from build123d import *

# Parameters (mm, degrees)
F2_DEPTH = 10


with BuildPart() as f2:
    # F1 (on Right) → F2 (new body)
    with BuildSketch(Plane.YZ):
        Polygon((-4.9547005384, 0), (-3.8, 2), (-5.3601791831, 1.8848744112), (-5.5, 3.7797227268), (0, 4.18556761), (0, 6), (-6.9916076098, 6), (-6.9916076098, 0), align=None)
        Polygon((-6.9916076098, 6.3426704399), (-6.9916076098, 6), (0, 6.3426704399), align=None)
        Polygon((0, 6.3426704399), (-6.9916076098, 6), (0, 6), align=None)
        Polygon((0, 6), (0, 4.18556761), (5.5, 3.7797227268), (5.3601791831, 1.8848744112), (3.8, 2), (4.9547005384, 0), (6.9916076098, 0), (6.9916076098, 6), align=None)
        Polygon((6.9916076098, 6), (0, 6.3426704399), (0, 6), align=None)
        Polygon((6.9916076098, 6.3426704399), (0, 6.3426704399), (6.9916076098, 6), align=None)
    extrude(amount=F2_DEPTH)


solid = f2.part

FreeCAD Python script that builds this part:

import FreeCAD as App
import Part
import Sketcher
Q = App.Units.Quantity


def add_polygon(sketch, points):
    """Adds a closed chain of lines whose ends are joined by coincident constraints."""
    first, n = sketch.GeometryCount, len(points)
    for a, b in zip(points, points[1:] + points[:1]):
        sketch.addGeometry(Part.LineSegment(App.Vector(*a, 0), App.Vector(*b, 0)), False)
    for i in range(n):
        sketch.addConstraint(Sketcher.Constraint("Coincident", first + i, 2, first + (i + 1) % n, 1))

doc = App.newDocument("Part")
body = doc.addObject("PartDesign::Body", "Body")

# Sketch on YZ plane
sketch1 = body.newObject("Sketcher::SketchObject", "Sketch")
sketch1.AttachmentSupport = (doc.getObject("YZ_Plane"), [""])
sketch1.MapMode = "FlatFace"
add_polygon(sketch1, [(-5, 0), (-3.8, 2), (-5.4, 1.9), (-5.5, 3.8), (0, 4.2), (5.5, 3.8), (5.4, 1.9), (3.8, 2), (5, 0), (7, 0), (7, 6.3), (-7, 6.3), (-7, 0)])  # lines 0-12
sketch1.addConstraint(Sketcher.Constraint("Horizontal", 8))
sketch1.addConstraint(Sketcher.Constraint("Vertical", 9))
sketch1.addConstraint(Sketcher.Constraint("Horizontal", 10))
sketch1.addConstraint(Sketcher.Constraint("Vertical", 11))
sketch1.addConstraint(Sketcher.Constraint("Horizontal", 12))
sketch1.addConstraint(Sketcher.Constraint("Symmetric", 8, 2, 11, 2, -1, 1))
sketch1.addConstraint(Sketcher.Constraint("Symmetric", 2, 2, 4, 2, -2))
sketch1.addConstraint(Sketcher.Constraint("Symmetric", 1, 2, 5, 2, -2))
sketch1.addConstraint(Sketcher.Constraint("Symmetric", 0, 2, 6, 2, -2))
sketch1.addConstraint(Sketcher.Constraint("Symmetric", 7, 2, 12, 2, -2))
sketch1.addConstraint(Sketcher.Constraint("PointOnObject", 3, 2, -2))
sketch1.addConstraint(Sketcher.Constraint("Perpendicular", 1, 2))
sketch1.addConstraint(Sketcher.Constraint("Perpendicular", 2, 3))
sketch1.addConstraint(Sketcher.Constraint("Angle", 0, Q("60 deg")))
sketch1.addConstraint(Sketcher.Constraint("DistanceY", -1, 1, 0, 2, Q("2 mm")))
sketch1.addConstraint(Sketcher.Constraint("DistanceX", 2, 2, 4, 2, Q("11 mm")))
sketch1.addConstraint(Sketcher.Constraint("Distance", 2, Q("1.9 mm")))
sketch1.addConstraint(Sketcher.Constraint("DistanceX", 0, 2, -1, 1, Q("3.8 mm")))
sketch1.addConstraint(Sketcher.Constraint("DistanceY", 9, 1, 9, 2, Q("6.34267 mm")))
sketch1.addConstraint(Sketcher.Constraint("Distance", 1, Q("1.564421 mm")))
sketch1.addConstraint(Sketcher.Constraint("DistanceX", 8, 1, 8, 2, Q("2.036907 mm")))
pad1 = body.newObject("PartDesign::Pad", "Pad")
pad1.Profile = sketch1
pad1.Length = 10

doc.recompute()
